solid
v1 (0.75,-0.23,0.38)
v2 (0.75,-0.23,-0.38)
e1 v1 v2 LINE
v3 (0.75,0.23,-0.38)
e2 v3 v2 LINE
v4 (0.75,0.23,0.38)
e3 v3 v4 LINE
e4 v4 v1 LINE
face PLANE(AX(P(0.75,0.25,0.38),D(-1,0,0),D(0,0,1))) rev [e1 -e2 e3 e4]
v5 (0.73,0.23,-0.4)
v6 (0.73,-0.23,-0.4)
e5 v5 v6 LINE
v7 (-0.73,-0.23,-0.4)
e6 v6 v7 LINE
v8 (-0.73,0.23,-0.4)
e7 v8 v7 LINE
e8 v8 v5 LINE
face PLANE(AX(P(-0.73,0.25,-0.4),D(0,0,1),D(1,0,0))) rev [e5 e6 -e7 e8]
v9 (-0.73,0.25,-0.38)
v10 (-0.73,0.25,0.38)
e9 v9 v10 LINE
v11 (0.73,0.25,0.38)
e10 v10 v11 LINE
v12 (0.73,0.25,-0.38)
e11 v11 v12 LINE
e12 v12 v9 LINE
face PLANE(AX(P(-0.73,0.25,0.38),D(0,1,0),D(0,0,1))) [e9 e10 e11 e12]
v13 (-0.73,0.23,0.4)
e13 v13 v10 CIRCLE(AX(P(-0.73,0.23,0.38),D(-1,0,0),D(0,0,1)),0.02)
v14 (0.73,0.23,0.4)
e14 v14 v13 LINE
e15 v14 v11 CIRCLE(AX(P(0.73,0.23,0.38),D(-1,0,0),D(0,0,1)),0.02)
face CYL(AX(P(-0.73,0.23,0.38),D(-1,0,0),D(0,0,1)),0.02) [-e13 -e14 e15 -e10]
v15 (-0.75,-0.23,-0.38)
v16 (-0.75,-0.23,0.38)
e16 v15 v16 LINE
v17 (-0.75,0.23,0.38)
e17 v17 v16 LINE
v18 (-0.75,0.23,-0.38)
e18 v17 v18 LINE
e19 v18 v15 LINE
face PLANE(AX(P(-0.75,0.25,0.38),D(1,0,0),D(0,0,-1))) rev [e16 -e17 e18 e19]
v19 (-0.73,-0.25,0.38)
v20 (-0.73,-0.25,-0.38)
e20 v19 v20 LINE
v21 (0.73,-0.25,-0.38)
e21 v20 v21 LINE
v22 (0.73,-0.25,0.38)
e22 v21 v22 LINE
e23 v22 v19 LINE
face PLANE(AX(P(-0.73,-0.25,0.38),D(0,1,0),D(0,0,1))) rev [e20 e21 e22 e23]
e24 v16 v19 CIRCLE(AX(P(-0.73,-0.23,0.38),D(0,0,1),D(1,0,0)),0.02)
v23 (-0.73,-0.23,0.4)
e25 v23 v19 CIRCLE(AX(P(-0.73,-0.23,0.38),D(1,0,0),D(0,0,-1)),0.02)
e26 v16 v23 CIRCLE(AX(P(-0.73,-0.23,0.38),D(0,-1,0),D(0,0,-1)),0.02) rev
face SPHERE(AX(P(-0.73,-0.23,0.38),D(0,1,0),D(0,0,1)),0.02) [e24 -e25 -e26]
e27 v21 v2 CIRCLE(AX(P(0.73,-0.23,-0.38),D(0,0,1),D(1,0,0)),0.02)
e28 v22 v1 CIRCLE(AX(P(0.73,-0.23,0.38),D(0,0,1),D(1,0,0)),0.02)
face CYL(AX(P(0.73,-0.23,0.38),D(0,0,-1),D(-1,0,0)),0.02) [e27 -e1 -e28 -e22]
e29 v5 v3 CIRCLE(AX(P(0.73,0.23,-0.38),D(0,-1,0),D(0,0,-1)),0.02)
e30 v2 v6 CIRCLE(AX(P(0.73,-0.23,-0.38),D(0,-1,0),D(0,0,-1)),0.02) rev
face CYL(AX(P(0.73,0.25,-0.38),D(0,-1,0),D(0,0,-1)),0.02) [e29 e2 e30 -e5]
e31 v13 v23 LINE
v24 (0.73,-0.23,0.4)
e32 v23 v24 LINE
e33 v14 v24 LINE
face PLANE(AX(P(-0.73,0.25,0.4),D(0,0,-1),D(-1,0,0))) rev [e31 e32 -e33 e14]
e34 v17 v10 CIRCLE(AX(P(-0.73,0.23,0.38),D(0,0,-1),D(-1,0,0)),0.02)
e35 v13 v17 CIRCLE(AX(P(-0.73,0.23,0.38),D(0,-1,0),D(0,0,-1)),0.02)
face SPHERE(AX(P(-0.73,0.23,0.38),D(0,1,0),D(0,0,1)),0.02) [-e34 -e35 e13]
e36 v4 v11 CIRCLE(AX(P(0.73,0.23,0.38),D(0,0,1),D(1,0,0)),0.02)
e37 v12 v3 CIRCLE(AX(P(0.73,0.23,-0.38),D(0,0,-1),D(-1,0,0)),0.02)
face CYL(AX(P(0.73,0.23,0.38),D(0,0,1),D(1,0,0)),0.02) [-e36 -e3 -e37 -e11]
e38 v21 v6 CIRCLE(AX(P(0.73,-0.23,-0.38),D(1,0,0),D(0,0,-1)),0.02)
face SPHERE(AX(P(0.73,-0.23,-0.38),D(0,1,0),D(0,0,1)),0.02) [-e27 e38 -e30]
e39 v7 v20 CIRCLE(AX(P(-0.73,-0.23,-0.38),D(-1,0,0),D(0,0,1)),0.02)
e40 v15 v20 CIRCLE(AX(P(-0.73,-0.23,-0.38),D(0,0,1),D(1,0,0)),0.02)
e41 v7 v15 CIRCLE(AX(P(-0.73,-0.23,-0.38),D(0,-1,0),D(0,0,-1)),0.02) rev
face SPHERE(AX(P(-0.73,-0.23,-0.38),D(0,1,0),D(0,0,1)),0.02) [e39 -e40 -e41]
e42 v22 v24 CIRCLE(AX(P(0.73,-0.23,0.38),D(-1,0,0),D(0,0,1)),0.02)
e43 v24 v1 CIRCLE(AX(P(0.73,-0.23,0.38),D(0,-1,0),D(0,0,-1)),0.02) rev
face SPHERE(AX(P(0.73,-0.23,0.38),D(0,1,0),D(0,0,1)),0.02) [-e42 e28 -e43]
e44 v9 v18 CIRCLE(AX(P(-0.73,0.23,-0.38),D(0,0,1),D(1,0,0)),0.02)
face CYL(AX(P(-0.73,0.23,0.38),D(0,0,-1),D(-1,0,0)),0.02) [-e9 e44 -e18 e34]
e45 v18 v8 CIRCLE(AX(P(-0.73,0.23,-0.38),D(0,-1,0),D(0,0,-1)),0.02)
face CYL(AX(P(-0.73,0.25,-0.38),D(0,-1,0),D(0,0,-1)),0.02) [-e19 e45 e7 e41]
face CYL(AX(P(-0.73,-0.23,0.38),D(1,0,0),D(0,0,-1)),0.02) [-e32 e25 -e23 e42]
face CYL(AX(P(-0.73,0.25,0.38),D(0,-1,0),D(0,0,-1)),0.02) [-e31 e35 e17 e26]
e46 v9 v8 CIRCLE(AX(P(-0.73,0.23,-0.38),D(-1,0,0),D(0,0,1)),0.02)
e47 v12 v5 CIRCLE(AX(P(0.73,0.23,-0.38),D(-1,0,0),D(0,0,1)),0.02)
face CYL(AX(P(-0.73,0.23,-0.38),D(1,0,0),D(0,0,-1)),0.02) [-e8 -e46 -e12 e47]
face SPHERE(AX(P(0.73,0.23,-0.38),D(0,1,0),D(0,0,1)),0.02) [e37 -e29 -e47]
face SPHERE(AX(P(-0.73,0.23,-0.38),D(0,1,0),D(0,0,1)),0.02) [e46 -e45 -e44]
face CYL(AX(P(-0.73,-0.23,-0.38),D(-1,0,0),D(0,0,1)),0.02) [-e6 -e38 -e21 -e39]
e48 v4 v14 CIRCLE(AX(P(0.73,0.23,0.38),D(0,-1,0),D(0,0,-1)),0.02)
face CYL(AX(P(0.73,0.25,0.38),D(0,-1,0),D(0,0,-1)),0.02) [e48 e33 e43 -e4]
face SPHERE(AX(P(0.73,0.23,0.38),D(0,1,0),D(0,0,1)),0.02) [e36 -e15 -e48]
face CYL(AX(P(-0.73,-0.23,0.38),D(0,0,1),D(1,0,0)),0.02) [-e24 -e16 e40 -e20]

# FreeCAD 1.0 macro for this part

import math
import FreeCAD as App
import Part
import Sketcher


def edges_at(feature, points):
    """Names of the edges that pass closest to the given points."""
    edges = feature.Shape.Edges
    near = lambda p: min(range(len(edges)), key=lambda i: edges[i].distToShape(Part.Vertex(*p))[0])
    return sorted({f"Edge{near(p) + 1}" for p in points})

doc = App.newDocument("Part")
params = doc.addObject("Spreadsheet::Sheet", "Params")
for row, (alias, value) in enumerate([
    ("sketch1_radius", "0.02 mm"),
    ("sketch1_width", "1.46 mm"),
    ("sketch1_height", "0.76 mm"),
    ("pad1_length", "0.5 mm"),
    ("fillet_radius", "0.02 mm"),
], start=1):
    params.set(f"A{row}", alias)
    params.set(f"B{row}", "=" + value)
    params.setAlias(f"B{row}", alias)

body = doc.addObject("PartDesign::Body", "Body")

# Sketch on XZ plane
sketch1 = body.newObject("Sketcher::SketchObject", "Sketch")
sketch1.AttachmentSupport = (doc.getObject("XZ_Plane"), [""])
sketch1.MapMode = "FlatFace"
sketch1.addGeometry([
    Part.LineSegment(App.Vector(-0.73, 0.4, 0), App.Vector(0.73, 0.4, 0)),  # 0
    Part.ArcOfCircle(Part.Circle(App.Vector(0.73, 0.38, 0), App.Vector(0, 0, 1), 0.02), math.radians(0), math.radians(90)),  # 1
    Part.LineSegment(App.Vector(0.75, 0.38, 0), App.Vector(0.75, -0.38, 0)),  # 2
    Part.ArcOfCircle(Part.Circle(App.Vector(0.73, -0.38, 0), App.Vector(0, 0, 1), 0.02), math.radians(-90), math.radians(0)),  # 3
    Part.LineSegment(App.Vector(0.73, -0.4, 0), App.Vector(-0.73, -0.4, 0)),  # 4
    Part.ArcOfCircle(Part.Circle(App.Vector(-0.73, -0.38, 0), App.Vector(0, 0, 1), 0.02), math.radians(180), math.radians(270)),  # 5
    Part.LineSegment(App.Vector(-0.75, -0.38, 0), App.Vector(-0.75, 0.38, 0)),  # 6
    Part.ArcOfCircle(Part.Circle(App.Vector(-0.73, 0.38, 0), App.Vector(0, 0, 1), 0.02), math.radians(90), math.radians(180)),  # 7
], False)
sketch1.addConstraint([
    Sketcher.Constraint("Tangent", 0, 2, 1, 2),
    Sketcher.Constraint("Tangent", 1, 1, 2, 1),
    Sketcher.Constraint("Tangent", 2, 2, 3, 2),
    Sketcher.Constraint("Tangent", 3, 1, 4, 1),
    Sketcher.Constraint("Tangent", 4, 2, 5, 2),
    Sketcher.Constraint("Tangent", 5, 1, 6, 1),
    Sketcher.Constraint("Tangent", 6, 2, 7, 2),
    Sketcher.Constraint("Tangent", 7, 1, 0, 1),
    Sketcher.Constraint("Horizontal", 0),
    Sketcher.Constraint("Vertical", 2),
    Sketcher.Constraint("Horizontal", 4),
    Sketcher.Constraint("Vertical", 6),
    Sketcher.Constraint("Equal", 1, 3),
    Sketcher.Constraint("Equal", 3, 5),
    Sketcher.Constraint("Equal", 5, 7),
    Sketcher.Constraint("Symmetric", 1, 3, 5, 3, -1, 1),
    Sketcher.Constraint("Radius", 1, 0.02),
    Sketcher.Constraint("DistanceX", 0, 1, 0, 2, 1.46),
    Sketcher.Constraint("DistanceY", 2, 2, 2, 1, 0.76),
])
sketch1.setExpression("Constraints[16]", "Params.sketch1_radius")
sketch1.setExpression("Constraints[17]", "Params.sketch1_width")
sketch1.setExpression("Constraints[18]", "Params.sketch1_height")
pad1 = body.newObject("PartDesign::Pad", "Pad")
pad1.Profile = sketch1
pad1.setExpression("Length", "Params.pad1_length")
pad1.Midplane = True
doc.recompute()

fillet = body.newObject("PartDesign::Fillet", "Fillet")
fillet.Base = (pad1, edges_at(pad1, [
    (0.744, 0.25, 0.394),
    (0, -0.25, 0.4),
    (-0.744, -0.25, 0.394),
    (0.75, 0.25, 0),
    (0.744, 0.25, -0.394),
    (0, 0.25, -0.4),
    (-0.744, 0.25, -0.394),
    (-0.75, 0.25, 0),
    (-0.744, 0.25, 0.394),
    (0, 0.25, 0.4),
    (-0.75, -0.25, 0),
    (-0.744, -0.25, -0.394),
    (0, -0.25, -0.4),
    (0.744, -0.25, -0.394),
    (0.75, -0.25, 0),
    (0.744, -0.25, 0.394),
]))
fillet.setExpression("Radius", "Params.fillet_radius")

doc.recompute()
